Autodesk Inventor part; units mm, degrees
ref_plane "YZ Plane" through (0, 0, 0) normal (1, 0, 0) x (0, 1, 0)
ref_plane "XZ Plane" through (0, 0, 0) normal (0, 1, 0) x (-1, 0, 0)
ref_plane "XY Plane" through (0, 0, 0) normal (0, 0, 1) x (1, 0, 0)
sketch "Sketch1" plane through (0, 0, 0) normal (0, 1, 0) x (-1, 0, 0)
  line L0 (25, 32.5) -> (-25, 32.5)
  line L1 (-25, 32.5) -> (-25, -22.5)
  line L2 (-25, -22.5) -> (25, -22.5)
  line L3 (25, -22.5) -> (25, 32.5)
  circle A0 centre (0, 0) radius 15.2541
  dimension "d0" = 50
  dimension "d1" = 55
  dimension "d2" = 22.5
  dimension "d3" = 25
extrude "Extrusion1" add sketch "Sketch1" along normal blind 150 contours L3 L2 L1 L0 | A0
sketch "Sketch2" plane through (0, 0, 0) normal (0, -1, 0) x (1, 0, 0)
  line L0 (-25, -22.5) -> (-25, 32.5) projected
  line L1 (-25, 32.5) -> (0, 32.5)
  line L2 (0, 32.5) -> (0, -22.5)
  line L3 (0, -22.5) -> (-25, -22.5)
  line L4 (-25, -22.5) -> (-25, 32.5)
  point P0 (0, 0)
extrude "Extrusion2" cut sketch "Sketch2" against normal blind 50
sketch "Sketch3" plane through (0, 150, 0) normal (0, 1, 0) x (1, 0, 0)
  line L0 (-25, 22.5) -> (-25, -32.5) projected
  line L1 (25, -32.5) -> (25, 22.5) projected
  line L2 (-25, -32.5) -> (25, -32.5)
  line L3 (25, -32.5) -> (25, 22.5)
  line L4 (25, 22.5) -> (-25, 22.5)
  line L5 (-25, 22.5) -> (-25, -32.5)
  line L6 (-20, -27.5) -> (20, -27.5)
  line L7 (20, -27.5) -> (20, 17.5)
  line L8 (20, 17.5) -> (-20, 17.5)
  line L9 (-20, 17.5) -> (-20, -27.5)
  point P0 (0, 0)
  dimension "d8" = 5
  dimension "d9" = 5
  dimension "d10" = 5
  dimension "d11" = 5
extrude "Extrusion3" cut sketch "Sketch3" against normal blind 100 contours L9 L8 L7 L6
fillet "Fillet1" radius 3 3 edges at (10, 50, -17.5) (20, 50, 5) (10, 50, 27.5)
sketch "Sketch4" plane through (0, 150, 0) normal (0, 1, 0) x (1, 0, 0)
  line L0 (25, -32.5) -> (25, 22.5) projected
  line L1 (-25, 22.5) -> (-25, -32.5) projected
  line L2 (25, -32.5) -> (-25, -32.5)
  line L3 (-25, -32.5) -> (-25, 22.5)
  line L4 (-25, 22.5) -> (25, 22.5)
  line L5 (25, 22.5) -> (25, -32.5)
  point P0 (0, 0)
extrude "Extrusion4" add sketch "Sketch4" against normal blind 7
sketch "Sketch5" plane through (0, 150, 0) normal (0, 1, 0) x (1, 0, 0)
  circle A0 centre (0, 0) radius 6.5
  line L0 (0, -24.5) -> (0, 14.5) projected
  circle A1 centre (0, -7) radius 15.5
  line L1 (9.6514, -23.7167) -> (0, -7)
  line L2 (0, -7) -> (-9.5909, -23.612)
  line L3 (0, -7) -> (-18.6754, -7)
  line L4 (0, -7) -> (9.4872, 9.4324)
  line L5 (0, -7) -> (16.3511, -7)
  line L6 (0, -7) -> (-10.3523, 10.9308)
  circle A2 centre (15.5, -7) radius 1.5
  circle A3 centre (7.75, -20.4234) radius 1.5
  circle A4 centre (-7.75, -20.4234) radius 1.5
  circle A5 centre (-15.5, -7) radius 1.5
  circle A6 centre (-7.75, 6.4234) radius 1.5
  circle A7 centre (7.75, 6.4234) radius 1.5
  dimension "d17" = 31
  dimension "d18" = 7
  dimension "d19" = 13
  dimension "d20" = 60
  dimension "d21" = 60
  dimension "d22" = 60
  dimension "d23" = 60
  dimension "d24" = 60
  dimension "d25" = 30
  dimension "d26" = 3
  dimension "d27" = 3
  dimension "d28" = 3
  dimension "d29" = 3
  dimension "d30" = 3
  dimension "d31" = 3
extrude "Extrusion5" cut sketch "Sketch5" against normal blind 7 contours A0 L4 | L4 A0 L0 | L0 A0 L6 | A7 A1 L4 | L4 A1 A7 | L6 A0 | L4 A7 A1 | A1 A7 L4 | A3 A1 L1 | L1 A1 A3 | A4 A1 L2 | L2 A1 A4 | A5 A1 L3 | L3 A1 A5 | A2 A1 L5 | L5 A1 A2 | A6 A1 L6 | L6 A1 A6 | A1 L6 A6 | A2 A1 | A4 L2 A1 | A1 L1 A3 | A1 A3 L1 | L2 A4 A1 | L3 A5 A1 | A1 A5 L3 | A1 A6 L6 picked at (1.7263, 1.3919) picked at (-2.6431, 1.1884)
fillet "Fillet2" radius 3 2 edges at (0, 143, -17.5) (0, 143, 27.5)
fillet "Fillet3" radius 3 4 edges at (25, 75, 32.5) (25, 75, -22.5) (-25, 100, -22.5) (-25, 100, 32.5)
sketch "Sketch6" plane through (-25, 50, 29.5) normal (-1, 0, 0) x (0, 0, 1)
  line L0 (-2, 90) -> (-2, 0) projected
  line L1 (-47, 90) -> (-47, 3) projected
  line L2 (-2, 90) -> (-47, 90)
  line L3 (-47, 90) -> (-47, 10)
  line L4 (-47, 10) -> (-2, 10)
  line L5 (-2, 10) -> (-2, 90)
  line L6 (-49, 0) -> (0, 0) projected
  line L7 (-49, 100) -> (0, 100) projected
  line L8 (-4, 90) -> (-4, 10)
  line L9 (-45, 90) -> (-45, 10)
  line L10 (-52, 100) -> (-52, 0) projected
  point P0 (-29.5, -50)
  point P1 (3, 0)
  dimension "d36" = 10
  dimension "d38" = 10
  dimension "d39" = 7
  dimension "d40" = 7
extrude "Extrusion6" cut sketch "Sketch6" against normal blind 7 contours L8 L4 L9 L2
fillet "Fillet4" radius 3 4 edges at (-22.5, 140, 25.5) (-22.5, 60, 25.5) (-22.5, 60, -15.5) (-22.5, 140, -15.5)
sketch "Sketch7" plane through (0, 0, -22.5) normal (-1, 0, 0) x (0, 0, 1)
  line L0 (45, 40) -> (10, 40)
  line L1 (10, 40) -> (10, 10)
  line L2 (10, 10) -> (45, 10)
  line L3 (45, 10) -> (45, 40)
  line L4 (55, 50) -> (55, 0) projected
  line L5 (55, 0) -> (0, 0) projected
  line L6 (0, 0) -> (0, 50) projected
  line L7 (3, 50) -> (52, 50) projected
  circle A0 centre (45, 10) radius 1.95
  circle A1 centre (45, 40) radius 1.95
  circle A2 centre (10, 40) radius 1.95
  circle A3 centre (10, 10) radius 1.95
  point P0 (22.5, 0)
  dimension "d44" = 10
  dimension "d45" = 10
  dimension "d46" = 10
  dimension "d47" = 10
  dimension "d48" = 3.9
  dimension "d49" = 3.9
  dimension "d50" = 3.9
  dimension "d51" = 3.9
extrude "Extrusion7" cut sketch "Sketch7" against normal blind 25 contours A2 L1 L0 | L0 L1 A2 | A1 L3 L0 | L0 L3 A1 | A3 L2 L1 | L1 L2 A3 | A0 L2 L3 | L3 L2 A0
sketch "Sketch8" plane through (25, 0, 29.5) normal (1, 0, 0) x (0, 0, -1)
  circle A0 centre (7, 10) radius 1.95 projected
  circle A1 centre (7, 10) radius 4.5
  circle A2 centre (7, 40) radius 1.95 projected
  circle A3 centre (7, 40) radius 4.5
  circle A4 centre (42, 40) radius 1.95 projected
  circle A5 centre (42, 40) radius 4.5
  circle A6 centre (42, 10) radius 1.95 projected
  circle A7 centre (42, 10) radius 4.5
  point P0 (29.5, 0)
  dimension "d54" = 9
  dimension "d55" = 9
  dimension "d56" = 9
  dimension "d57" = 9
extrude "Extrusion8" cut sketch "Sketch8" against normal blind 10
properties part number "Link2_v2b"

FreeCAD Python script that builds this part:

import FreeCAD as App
import Part
import Sketcher
from FreeCAD import Vector
Q = App.Units.Quantity


def edges_at(feature, points):
    """Names of the edges that pass closest to the given points."""
    edges = feature.Shape.Edges
    near = lambda p: min(range(len(edges)), key=lambda i: edges[i].distToShape(Part.Vertex(*p))[0])
    return sorted({f"Edge{near(p) + 1}" for p in points})

doc = App.newDocument("Part")
body = doc.addObject("PartDesign::Body", "Body")

# Sketch on XZ plane
sketch1 = body.newObject("Sketcher::SketchObject", "Sketch")
sketch1.AttachmentSupport = (doc.getObject("XZ_Plane"), [""])
sketch1.MapMode = "FlatFace"
sketch1.addGeometry([
    Part.LineSegment(Vector(-25, -22, 0), Vector(-25, 32, 0)),
    Part.LineSegment(Vector(-25, 32, 0), Vector(25, 32, 0)),
    Part.LineSegment(Vector(25, 32, 0), Vector(25, -22, 0)),
    Part.LineSegment(Vector(25, -22, 0), Vector(-25, -22, 0)),
], False)
sketch1.addConstraint([
    Sketcher.Constraint("Coincident", 0, 2, 1, 1),
    Sketcher.Constraint("Coincident", 1, 2, 2, 1),
    Sketcher.Constraint("Coincident", 2, 2, 3, 1),
    Sketcher.Constraint("Coincident", 3, 2, 0, 1),
    Sketcher.Constraint("Vertical", 0),
    Sketcher.Constraint("Horizontal", 1),
    Sketcher.Constraint("Vertical", 2),
    Sketcher.Constraint("Horizontal", 3),
    Sketcher.Constraint("DistanceX", 1, 1, 1, 2, Q("50 mm")),
    Sketcher.Constraint("DistanceY", 0, 1, 0, 2, Q("55 mm")),
    Sketcher.Constraint("DistanceX", 0, 2, -1, 1, Q("25 mm")),
    Sketcher.Constraint("DistanceY", 2, 2, -1, 1, Q("22.5 mm")),
])
pad1 = body.newObject("PartDesign::Pad", "Pad")
pad1.Profile = sketch1
pad1.Length = 150
pad1.Reversed = True

# Sketch on XZ plane
sketch2 = body.newObject("Sketcher::SketchObject", "Sketch001")
sketch2.AttachmentSupport = (doc.getObject("XZ_Plane"), [""])
sketch2.MapMode = "FlatFace"
sketch2.addGeometry([
    Part.LineSegment(Vector(-25, 32, 0), Vector(-25, -22, 0)),
    Part.LineSegment(Vector(-25, -22, 0), Vector(0, -22, 0)),
    Part.LineSegment(Vector(0, -22, 0), Vector(0, 32, 0)),
    Part.LineSegment(Vector(0, 32, 0), Vector(-25, 32, 0)),
], False)
sketch2.addConstraint([
    Sketcher.Constraint("Coincident", 0, 2, 1, 1),
    Sketcher.Constraint("Coincident", 1, 2, 2, 1),
    Sketcher.Constraint("Coincident", 2, 2, 3, 1),
    Sketcher.Constraint("Coincident", 3, 2, 0, 1),
    Sketcher.Constraint("Vertical", 0),
    Sketcher.Constraint("Horizontal", 1),
    Sketcher.Constraint("Vertical", 2),
    Sketcher.Constraint("Horizontal", 3),
    Sketcher.Constraint("PointOnObject", 1, 2, -2),
    Sketcher.Constraint("DistanceX", 1, 1, 1, 2, Q("25 mm")),
    Sketcher.Constraint("DistanceY", 0, 2, 0, 1, Q("55 mm")),
    Sketcher.Constraint("DistanceY", 0, 2, -1, 1, Q("22.5 mm")),
])
pocket1 = body.newObject("PartDesign::Pocket", "Pocket")
pocket1.Profile = sketch2
pocket1.Length = 50

# Sketch on XZ plane
sketch3 = body.newObject("Sketcher::SketchObject", "Sketch002")
sketch3.AttachmentSupport = (doc.getObject("XZ_Plane"), [""])
sketch3.MapMode = "FlatFace"
sketch3.AttachmentOffset = App.Placement(Vector(0, 0, -150), App.Rotation())
sketch3.addGeometry([
    Part.LineSegment(Vector(-20, -18, 0), Vector(-20, 28, 0)),
    Part.LineSegment(Vector(-20, 28, 0), Vector(20, 28, 0)),
    Part.LineSegment(Vector(20, 28, 0), Vector(20, -18, 0)),
    Part.LineSegment(Vector(20, -18, 0), Vector(-20, -18, 0)),
], False)
sketch3.addConstraint([
    Sketcher.Constraint("Coincident", 0, 2, 1, 1),
    Sketcher.Constraint("Coincident", 1, 2, 2, 1),
    Sketcher.Constraint("Coincident", 2, 2, 3, 1),
    Sketcher.Constraint("Coincident", 3, 2, 0, 1),
    Sketcher.Constraint("Vertical", 0),
    Sketcher.Constraint("Horizontal", 1),
    Sketcher.Constraint("Vertical", 2),
    Sketcher.Constraint("Horizontal", 3),
    Sketcher.Constraint("DistanceX", 1, 1, 1, 2, Q("40 mm")),
    Sketcher.Constraint("DistanceY", 0, 1, 0, 2, Q("45 mm")),
    Sketcher.Constraint("DistanceX", 0, 2, -1, 1, Q("20 mm")),
    Sketcher.Constraint("DistanceY", -1, 1, 0, 2, Q("27.5 mm")),
])
pocket2 = body.newObject("PartDesign::Pocket", "Pocket001")
pocket2.Profile = sketch3
pocket2.Length = 100
pocket2.Reversed = True
doc.recompute()

fillet = body.newObject("PartDesign::Fillet", "Fillet")
fillet.Base = (pocket2, edges_at(pocket2, [(10, 50, -17.5), (20, 50, 5), (10, 50, 27.5)]))
fillet.Radius = 3

# Sketch on XZ plane
sketch4 = body.newObject("Sketcher::SketchObject", "Sketch003")
sketch4.AttachmentSupport = (doc.getObject("XZ_Plane"), [""])
sketch4.MapMode = "FlatFace"
sketch4.AttachmentOffset = App.Placement(Vector(0, 0, -150), App.Rotation())
sketch4.addGeometry([
    Part.LineSegment(Vector(-25, 32, 0), Vector(25, 32, 0)),
    Part.LineSegment(Vector(25, 32, 0), Vector(25, -22, 0)),
    Part.LineSegment(Vector(25, -22, 0), Vector(-25, -22, 0)),
    Part.LineSegment(Vector(-25, -22, 0), Vector(-25, 32, 0)),
], False)
sketch4.addConstraint([
    Sketcher.Constraint("Coincident", 0, 2, 1, 1),
    Sketcher.Constraint("Coincident", 1, 2, 2, 1),
    Sketcher.Constraint("Coincident", 2, 2, 3, 1),
    Sketcher.Constraint("Coincident", 3, 2, 0, 1),
    Sketcher.Constraint("Horizontal", 0),
    Sketcher.Constraint("Vertical", 1),
    Sketcher.Constraint("Horizontal", 2),
    Sketcher.Constraint("Vertical", 3),
    Sketcher.Constraint("DistanceX", 0, 1, 0, 2, Q("50 mm")),
    Sketcher.Constraint("DistanceY", 1, 2, 1, 1, Q("55 mm")),
    Sketcher.Constraint("DistanceX", -1, 1, 0, 2, Q("25 mm")),
    Sketcher.Constraint("DistanceY", -1, 1, 0, 2, Q("32.5 mm")),
])
pad2 = body.newObject("PartDesign::Pad", "Pad001")
pad2.Profile = sketch4
pad2.Length = 7

# Sketch on XZ plane
sketch5 = body.newObject("Sketcher::SketchObject", "Sketch004")
sketch5.AttachmentSupport = (doc.getObject("XZ_Plane"), [""])
sketch5.MapMode = "FlatFace"
sketch5.AttachmentOffset = App.Placement(Vector(0, 0, -150), App.Rotation())
sketch5.addGeometry([
    Part.Circle(Vector(0, 0, 0), Vector(0, 0, 1), 6.5),  # 0
    Part.Circle(Vector(7.8, -6.4, 0), Vector(0, 0, 1), 1.5),  # 1
    Part.Circle(Vector(7.8, 20.4, 0), Vector(0, 0, 1), 1.5),  # 2
    Part.Circle(Vector(-7.8, 20.4, 0), Vector(0, 0, 1), 1.5),  # 3
    Part.Circle(Vector(-15.5, 7, 0), Vector(0, 0, 1), 1.5),  # 4
    Part.Circle(Vector(15.5, 7, 0), Vector(0, 0, 1), 1.5),  # 5
    Part.Circle(Vector(-7.8, -6.4, 0), Vector(0, 0, 1), 1.5),  # 6
], False)
sketch5.addConstraint([
    Sketcher.Constraint("Coincident", 0, 3, -1, 1),
    Sketcher.Constraint("Equal", 1, 2),
    Sketcher.Constraint("Equal", 2, 3),
    Sketcher.Constraint("Equal", 3, 4),
    Sketcher.Constraint("Equal", 4, 5),
    Sketcher.Constraint("Equal", 5, 6),
    Sketcher.Constraint("Symmetric", 2, 3, 3, 3, -2),
    Sketcher.Constraint("Symmetric", 4, 3, 5, 3, -2),
    Sketcher.Constraint("Symmetric", 1, 3, 6, 3, -2),
    Sketcher.Constraint("Vertical", 1, 3, 2, 3),
    Sketcher.Constraint("Diameter", 0, Q("13 mm")),
    Sketcher.Constraint("Diameter", 1, Q("3 mm")),
    Sketcher.Constraint("DistanceY", -1, 1, 4, 3, Q("7 mm")),
    Sketcher.Constraint("DistanceX", 4, 3, 5, 3, Q("31 mm")),
    Sketcher.Constraint("DistanceX", 3, 3, 2, 3, Q("15.5 mm")),
    Sketcher.Constraint("DistanceY", 1, 3, -1, 1, Q("6.4234 mm")),
    Sketcher.Constraint("DistanceY", -1, 1, 2, 3, Q("20.4234 mm")),
])
pocket3 = body.newObject("PartDesign::Pocket", "Pocket002")
pocket3.Profile = sketch5
pocket3.Length = 7
pocket3.Reversed = True
doc.recompute()

fillet2 = body.newObject("PartDesign::Fillet", "Fillet001")
fillet2.Base = (pocket3, edges_at(pocket3, [(0, 143, -17.5), (0, 143, 27.5)]))
fillet2.Radius = 3
doc.recompute()

fillet3 = body.newObject("PartDesign::Fillet", "Fillet002")
fillet3.Base = (fillet2, edges_at(fillet2, [
    (25, 75, 32.5),
    (25, 75, -22.5),
    (-25, 100, -22.5),
    (-25, 100, 32.5),
]))
fillet3.Radius = 3

# Sketch on YZ plane
sketch6 = body.newObject("Sketcher::SketchObject", "Sketch005")
sketch6.AttachmentSupport = (doc.getObject("YZ_Plane"), [""])
sketch6.MapMode = "FlatFace"
sketch6.AttachmentOffset = App.Placement(Vector(0, 0, -25), App.Rotation())
sketch6.addGeometry([
    Part.LineSegment(Vector(60, 26, 0), Vector(140, 26, 0)),
    Part.LineSegment(Vector(140, 26, 0), Vector(140, -16, 0)),
    Part.LineSegment(Vector(140, -16, 0), Vector(60, -16, 0)),
    Part.LineSegment(Vector(60, -16, 0), Vector(60, 26, 0)),
], False)
sketch6.addConstraint([
    Sketcher.Constraint("Coincident", 0, 2, 1, 1),
    Sketcher.Constraint("Coincident", 1, 2, 2, 1),
    Sketcher.Constraint("Coincident", 2, 2, 3, 1),
    Sketcher.Constraint("Coincident", 3, 2, 0, 1),
    Sketcher.Constraint("Horizontal", 0),
    Sketcher.Constraint("Vertical", 1),
    Sketcher.Constraint("Horizontal", 2),
    Sketcher.Constraint("Vertical", 3),
    Sketcher.Constraint("DistanceX", 0, 1, 0, 2, Q("80 mm")),
    Sketcher.Constraint("DistanceY", 1, 2, 1, 1, Q("41 mm")),
    Sketcher.Constraint("DistanceX", -1, 1, 0, 2, Q("140 mm")),
    Sketcher.Constraint("DistanceY", -1, 1, 0, 2, Q("25.5 mm")),
])
pocket4 = body.newObject("PartDesign::Pocket", "Pocket003")
pocket4.Profile = sketch6
pocket4.Length = 7
pocket4.Reversed = True
doc.recompute()

fillet4 = body.newObject("PartDesign::Fillet", "Fillet003")
fillet4.Base = (pocket4, edges_at(pocket4, [
    (-22.5, 140, 25.5),
    (-22.5, 60, 25.5),
    (-22.5, 60, -15.5),
    (-22.5, 140, -15.5),
]))
fillet4.Radius = 3

# Sketch on YZ plane
sketch7 = body.newObject("Sketcher::SketchObject", "Sketch006")
sketch7.AttachmentSupport = (doc.getObject("YZ_Plane"), [""])
sketch7.MapMode = "FlatFace"
sketch7.addGeometry([
    Part.Circle(Vector(40, -12.5, 0), Vector(0, 0, 1), 1.9),
    Part.Circle(Vector(40, 22.5, 0), Vector(0, 0, 1), 1.9),
    Part.Circle(Vector(10, -12.5, 0), Vector(0, 0, 1), 1.9),
    Part.Circle(Vector(10, 22.5, 0), Vector(0, 0, 1), 1.9),
], False)
sketch7.addConstraint([
    Sketcher.Constraint("Equal", 0, 1),
    Sketcher.Constraint("Equal", 1, 2),
    Sketcher.Constraint("Equal", 2, 3),
    Sketcher.Constraint("Horizontal", 0, 3, 2, 3),
    Sketcher.Constraint("Horizontal", 1, 3, 3, 3),
    Sketcher.Constraint("Vertical", 0, 3, 1, 3),
    Sketcher.Constraint("Vertical", 2, 3, 3, 3),
    Sketcher.Constraint("Diameter", 0, Q("3.9 mm")),
    Sketcher.Constraint("DistanceX", -1, 1, 2, 3, Q("10 mm")),
    Sketcher.Constraint("DistanceX", -1, 1, 0, 3, Q("40 mm")),
    Sketcher.Constraint("DistanceY", 0, 3, 1, 3, Q("35 mm")),
    Sketcher.Constraint("DistanceY", 0, 3, -1, 1, Q("12.5 mm")),
])
pocket5 = body.newObject("PartDesign::Pocket", "Pocket004")
pocket5.Profile = sketch7
pocket5.Length = 25
pocket5.Reversed = True

# Sketch on YZ plane
sketch8 = body.newObject("Sketcher::SketchObject", "Sketch007")
sketch8.AttachmentSupport = (doc.getObject("YZ_Plane"), [""])
sketch8.MapMode = "FlatFace"
sketch8.AttachmentOffset = App.Placement(Vector(0, 0, 25), App.Rotation())
sketch8.addGeometry([
    Part.Circle(Vector(10, 22.5, 0), Vector(0, 0, 1), 4.5),  # 0
    Part.Circle(Vector(10, 22.5, 0), Vector(0, 0, 1), 1.9),  # 1
    Part.Circle(Vector(40, 22.5, 0), Vector(0, 0, 1), 4.5),  # 2
    Part.Circle(Vector(40, 22.5, 0), Vector(0, 0, 1), 1.9),  # 3
    Part.Circle(Vector(40, -12.5, 0), Vector(0, 0, 1), 4.5),  # 4
    Part.Circle(Vector(40, -12.5, 0), Vector(0, 0, 1), 1.9),  # 5
    Part.Circle(Vector(10, -12.5, 0), Vector(0, 0, 1), 4.5),  # 6
    Part.Circle(Vector(10, -12.5, 0), Vector(0, 0, 1), 1.9),  # 7
], False)
sketch8.addConstraint([
    Sketcher.Constraint("Coincident", 1, 3, 0, 3),
    Sketcher.Constraint("Coincident", 3, 3, 2, 3),
    Sketcher.Constraint("Coincident", 5, 3, 4, 3),
    Sketcher.Constraint("Coincident", 7, 3, 6, 3),
    Sketcher.Constraint("Equal", 0, 2),
    Sketcher.Constraint("Equal", 1, 3),
    Sketcher.Constraint("Equal", 2, 4),
    Sketcher.Constraint("Equal", 3, 5),
    Sketcher.Constraint("Equal", 4, 6),
    Sketcher.Constraint("Equal", 5, 7),
    Sketcher.Constraint("Horizontal", 1, 3, 2, 3),
    Sketcher.Constraint("Horizontal", 5, 3, 6, 3),
    Sketcher.Constraint("Vertical", 3, 3, 4, 3),
    Sketcher.Constraint("Vertical", 1, 3, 6, 3),
    Sketcher.Constraint("Diameter", 0, Q("9 mm")),
    Sketcher.Constraint("Diameter", 1, Q("3.9 mm")),
    Sketcher.Constraint("DistanceX", -1, 1, 0, 3, Q("10 mm")),
    Sketcher.Constraint("DistanceX", -1, 1, 2, 3, Q("40 mm")),
    Sketcher.Constraint("DistanceY", 4, 3, 2, 3, Q("35 mm")),
    Sketcher.Constraint("DistanceY", -1, 1, 0, 3, Q("22.5 mm")),
])
pocket6 = body.newObject("PartDesign::Pocket", "Pocket005")
pocket6.Profile = sketch8
pocket6.Length = 10

doc.recompute()
